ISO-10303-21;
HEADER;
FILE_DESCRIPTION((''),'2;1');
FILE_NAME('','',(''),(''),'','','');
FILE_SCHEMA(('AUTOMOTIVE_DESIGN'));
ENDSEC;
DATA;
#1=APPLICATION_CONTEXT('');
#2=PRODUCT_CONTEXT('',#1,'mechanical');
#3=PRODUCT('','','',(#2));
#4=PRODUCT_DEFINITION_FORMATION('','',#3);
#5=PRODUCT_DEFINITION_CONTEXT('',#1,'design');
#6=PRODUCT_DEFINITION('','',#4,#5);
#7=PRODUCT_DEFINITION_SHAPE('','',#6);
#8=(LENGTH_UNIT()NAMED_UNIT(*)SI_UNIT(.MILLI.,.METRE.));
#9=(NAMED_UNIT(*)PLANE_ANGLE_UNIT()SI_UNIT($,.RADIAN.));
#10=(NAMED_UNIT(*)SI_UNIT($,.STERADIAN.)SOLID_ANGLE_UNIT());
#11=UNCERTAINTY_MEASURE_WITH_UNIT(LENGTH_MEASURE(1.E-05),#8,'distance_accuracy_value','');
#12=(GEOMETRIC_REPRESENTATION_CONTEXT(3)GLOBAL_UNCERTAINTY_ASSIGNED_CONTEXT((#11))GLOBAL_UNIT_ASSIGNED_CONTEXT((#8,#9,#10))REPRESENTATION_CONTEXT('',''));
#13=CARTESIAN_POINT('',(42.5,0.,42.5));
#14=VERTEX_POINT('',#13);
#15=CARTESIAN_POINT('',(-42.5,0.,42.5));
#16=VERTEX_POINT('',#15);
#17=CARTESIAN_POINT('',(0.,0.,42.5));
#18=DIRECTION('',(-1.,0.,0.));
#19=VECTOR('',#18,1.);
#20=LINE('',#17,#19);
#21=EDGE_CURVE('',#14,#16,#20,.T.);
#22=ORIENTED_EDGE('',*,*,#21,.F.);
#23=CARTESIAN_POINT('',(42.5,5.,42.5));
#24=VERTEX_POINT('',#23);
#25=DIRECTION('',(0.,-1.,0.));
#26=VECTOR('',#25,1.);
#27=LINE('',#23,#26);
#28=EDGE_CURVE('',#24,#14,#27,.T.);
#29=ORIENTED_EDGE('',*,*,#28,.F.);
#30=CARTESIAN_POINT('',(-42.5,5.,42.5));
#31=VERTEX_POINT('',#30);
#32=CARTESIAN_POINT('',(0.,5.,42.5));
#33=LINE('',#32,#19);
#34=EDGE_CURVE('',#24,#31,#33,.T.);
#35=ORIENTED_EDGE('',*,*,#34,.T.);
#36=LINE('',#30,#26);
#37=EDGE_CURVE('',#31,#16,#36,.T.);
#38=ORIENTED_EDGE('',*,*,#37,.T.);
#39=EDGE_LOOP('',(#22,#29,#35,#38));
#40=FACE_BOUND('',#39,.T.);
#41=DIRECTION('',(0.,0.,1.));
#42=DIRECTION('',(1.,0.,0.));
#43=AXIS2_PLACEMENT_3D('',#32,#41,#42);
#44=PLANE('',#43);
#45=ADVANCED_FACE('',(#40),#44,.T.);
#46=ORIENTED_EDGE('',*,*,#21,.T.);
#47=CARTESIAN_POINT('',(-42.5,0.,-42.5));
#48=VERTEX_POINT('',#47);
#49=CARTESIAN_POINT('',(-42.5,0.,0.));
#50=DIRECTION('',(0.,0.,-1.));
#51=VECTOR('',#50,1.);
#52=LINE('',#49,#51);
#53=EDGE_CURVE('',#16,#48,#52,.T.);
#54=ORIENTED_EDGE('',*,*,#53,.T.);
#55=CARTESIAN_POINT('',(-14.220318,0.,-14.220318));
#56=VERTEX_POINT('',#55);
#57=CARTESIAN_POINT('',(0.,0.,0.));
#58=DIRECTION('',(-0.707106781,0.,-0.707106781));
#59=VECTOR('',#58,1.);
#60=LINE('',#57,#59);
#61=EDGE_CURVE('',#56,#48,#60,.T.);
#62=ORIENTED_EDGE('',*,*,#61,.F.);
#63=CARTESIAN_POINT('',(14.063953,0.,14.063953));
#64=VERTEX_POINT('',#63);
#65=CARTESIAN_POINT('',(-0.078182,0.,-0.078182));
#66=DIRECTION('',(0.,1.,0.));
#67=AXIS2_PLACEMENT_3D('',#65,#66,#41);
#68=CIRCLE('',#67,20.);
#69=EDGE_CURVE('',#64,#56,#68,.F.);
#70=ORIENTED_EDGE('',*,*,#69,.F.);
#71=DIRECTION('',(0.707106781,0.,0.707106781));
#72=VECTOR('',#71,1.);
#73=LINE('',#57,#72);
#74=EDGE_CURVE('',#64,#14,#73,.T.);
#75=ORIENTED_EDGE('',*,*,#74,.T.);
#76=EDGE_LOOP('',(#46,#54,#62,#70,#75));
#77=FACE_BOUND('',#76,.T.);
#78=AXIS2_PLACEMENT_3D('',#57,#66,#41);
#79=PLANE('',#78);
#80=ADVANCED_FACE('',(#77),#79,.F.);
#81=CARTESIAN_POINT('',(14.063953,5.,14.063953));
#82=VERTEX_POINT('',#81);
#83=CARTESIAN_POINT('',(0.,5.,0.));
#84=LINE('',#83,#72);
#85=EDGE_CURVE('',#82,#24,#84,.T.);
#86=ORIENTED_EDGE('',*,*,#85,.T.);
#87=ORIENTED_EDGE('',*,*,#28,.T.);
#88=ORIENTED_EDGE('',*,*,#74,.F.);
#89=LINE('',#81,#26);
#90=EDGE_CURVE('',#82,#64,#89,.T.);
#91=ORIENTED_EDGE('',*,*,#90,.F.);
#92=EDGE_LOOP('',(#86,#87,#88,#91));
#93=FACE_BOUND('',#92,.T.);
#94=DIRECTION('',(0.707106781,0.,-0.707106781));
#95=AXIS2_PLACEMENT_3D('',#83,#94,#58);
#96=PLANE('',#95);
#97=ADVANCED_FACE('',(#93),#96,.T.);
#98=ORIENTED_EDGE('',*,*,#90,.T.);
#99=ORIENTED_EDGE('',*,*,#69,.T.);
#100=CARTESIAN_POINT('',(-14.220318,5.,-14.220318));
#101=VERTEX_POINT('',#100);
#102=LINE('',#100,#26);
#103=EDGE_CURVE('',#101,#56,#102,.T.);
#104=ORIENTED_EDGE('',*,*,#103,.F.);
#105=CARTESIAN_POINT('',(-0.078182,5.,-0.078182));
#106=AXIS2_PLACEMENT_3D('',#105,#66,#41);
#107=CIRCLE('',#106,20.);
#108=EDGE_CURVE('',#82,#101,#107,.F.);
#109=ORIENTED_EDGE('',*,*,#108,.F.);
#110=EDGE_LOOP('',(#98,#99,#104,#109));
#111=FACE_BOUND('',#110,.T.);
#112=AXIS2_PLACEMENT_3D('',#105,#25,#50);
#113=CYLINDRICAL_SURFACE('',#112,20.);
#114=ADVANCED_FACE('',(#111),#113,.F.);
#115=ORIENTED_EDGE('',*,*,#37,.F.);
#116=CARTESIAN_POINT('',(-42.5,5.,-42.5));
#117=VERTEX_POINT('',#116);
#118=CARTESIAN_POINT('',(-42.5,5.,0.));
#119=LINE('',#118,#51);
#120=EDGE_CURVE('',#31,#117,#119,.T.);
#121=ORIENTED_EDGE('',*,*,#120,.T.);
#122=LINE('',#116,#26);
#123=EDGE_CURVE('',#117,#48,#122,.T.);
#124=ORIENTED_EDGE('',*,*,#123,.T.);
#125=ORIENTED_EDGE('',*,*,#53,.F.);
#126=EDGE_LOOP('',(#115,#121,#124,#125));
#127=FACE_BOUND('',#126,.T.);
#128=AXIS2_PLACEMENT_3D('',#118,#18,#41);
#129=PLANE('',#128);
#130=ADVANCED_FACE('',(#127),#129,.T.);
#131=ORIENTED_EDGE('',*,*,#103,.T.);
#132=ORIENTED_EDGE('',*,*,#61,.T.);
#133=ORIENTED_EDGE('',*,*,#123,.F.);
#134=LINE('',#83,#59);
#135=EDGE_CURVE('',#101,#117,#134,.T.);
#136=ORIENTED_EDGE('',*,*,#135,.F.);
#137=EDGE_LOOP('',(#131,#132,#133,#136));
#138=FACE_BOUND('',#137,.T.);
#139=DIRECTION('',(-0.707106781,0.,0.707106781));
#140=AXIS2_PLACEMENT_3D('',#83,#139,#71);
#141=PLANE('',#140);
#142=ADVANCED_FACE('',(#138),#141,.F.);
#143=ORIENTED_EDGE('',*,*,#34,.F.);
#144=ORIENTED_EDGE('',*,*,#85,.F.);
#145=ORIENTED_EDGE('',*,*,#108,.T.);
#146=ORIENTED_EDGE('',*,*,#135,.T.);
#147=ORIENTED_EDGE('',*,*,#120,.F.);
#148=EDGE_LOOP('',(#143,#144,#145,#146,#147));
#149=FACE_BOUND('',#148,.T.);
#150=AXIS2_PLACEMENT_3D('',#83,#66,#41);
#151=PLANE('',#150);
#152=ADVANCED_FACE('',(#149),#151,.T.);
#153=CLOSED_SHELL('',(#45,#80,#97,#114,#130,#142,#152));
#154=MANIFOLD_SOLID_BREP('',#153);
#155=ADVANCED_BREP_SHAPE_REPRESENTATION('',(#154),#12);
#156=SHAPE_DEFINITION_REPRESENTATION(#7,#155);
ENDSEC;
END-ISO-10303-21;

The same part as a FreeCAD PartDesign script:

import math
import FreeCAD as App
import Part
import Sketcher
Q = App.Units.Quantity

doc = App.newDocument("Part")
params = doc.addObject("Spreadsheet::Sheet", "Params")
for row, (alias, value) in enumerate([
    ("sketch1_radius", "20 mm"),
    ("sketch1_width", "85 mm"),
    ("pad1_length", "5 mm"),
], start=1):
    params.set(f"A{row}", alias)
    params.set(f"B{row}", "=" + value)
    params.setAlias(f"B{row}", alias)

body = doc.addObject("PartDesign::Body", "Body")

sketch1 = doc.addObject("Sketcher::SketchObject", "Sketch")
body.addObject(sketch1)
sketch1.AttachmentSupport = (doc.XZ_Plane, [""])
sketch1.MapMode = "FlatFace"
sketch1.addGeometry([
    Part.LineSegment(App.Vector(-14, -14, 0), App.Vector(-42, -42, 0)),
    Part.LineSegment(App.Vector(-42, -42, 0), App.Vector(-42, 42, 0)),
    Part.LineSegment(App.Vector(-42, 42, 0), App.Vector(42, 42, 0)),
    Part.LineSegment(App.Vector(42, 42, 0), App.Vector(14, 14, 0)),
    Part.ArcOfCircle(Part.Circle(App.Vector(0, 0, 0), App.Vector(0, 0, 1), 20), math.radians(45), math.radians(225)),
], False)
sketch1.addConstraint([
    Sketcher.Constraint("Coincident", 0, 2, 1, 1),
    Sketcher.Constraint("Coincident", 1, 2, 2, 1),
    Sketcher.Constraint("Coincident", 2, 2, 3, 1),
    Sketcher.Constraint("Coincident", 3, 2, 4, 1),
    Sketcher.Constraint("Coincident", 4, 2, 0, 1),
    Sketcher.Constraint("Vertical", 1),
    Sketcher.Constraint("Horizontal", 2),
    Sketcher.Constraint("Symmetric", 0, 2, 2, 2, -1, 1),
    Sketcher.Constraint("Parallel", 0, 3),
    Sketcher.Constraint("Equal", 2, 1),
    Sketcher.Constraint("Radius", 4, Q("20 mm")),
    Sketcher.Constraint("DistanceX", 2, 1, 2, 2, Q("85 mm")),
    Sketcher.Constraint("Angle", 0, Q("-135 deg")),
    Sketcher.Constraint("Distance", 0, Q("39.99351 mm")),
    Sketcher.Constraint("DistanceX", 4, 3, -1, 1, Q("0.078182 mm")),
])
sketch1.setExpression("Constraints[10]", "Params.sketch1_radius")
sketch1.setExpression("Constraints[11]", "Params.sketch1_width")
pad1 = doc.addObject("PartDesign::Pad", "Pad")
body.addObject(pad1)
pad1.Profile = sketch1
pad1.setExpression("Length", "Params.pad1_length")
pad1.Reversed = True

doc.recompute()
